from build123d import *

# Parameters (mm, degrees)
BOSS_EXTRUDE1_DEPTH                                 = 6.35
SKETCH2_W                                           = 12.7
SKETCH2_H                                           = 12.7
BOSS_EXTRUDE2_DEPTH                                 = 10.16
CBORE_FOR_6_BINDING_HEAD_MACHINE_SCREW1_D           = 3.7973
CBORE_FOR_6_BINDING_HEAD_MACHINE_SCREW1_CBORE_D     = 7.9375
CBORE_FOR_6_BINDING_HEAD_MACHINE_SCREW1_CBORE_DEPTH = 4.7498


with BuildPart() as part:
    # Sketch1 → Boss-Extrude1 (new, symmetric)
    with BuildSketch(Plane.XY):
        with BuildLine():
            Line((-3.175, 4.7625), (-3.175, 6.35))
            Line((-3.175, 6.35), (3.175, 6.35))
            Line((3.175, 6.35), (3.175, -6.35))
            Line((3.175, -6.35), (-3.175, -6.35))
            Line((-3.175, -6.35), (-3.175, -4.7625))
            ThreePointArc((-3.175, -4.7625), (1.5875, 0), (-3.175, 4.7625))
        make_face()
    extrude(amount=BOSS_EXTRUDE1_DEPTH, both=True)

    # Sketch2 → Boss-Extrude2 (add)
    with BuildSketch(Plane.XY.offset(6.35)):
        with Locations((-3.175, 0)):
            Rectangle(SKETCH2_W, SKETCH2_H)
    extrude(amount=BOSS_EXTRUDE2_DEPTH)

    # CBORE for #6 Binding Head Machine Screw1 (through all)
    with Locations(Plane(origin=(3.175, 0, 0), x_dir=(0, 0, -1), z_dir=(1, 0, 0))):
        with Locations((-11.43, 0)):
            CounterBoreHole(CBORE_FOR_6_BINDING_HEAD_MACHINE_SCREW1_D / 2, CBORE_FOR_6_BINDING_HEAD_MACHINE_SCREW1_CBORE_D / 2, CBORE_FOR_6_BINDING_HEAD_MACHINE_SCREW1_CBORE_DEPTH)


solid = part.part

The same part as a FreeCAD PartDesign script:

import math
import FreeCAD as App
import Part
import Sketcher

V = App.Vector
Q = App.Units.Quantity


def add_polygon(sketch, points):
    """Adds a closed chain of lines whose ends are joined by coincident constraints."""
    first, n = sketch.GeometryCount, len(points)
    for a, b in zip(points, points[1:] + points[:1]):
        sketch.addGeometry(Part.LineSegment(App.Vector(*a, 0), App.Vector(*b, 0)), False)
    for i in range(n):
        sketch.addConstraint(Sketcher.Constraint("Coincident", first + i, 2, first + (i + 1) % n, 1))

doc = App.newDocument("Part")
params = doc.addObject("Spreadsheet::Sheet", "Params")
for row, (alias, value) in enumerate([
    ("sketch1_height", "0.5 in"),
    ("sketch1_radius", "0.1875 in"),
    ("sketch1_width", "0.25 in"),
    ("pad1_length", "0.5 in"),
    ("sketch2_width", "0.5 in"),
    ("pad2_length", "0.4 in"),
    ("hole_diameter", "0.1495 in"),
    ("hole_cbore_diameter", "0.3125 in"),
    ("hole_cbore_depth", "0.187 in"),
], start=1):
    params.set(f"A{row}", alias)
    params.set(f"B{row}", "=" + value)
    params.setAlias(f"B{row}", alias)

body = doc.addObject("PartDesign::Body", "Body")

# Sketch on XY plane
sketch1 = doc.addObject("Sketcher::SketchObject", "Sketch")
body.addObject(sketch1)
sketch1.AttachmentSupport = (doc.XY_Plane, [""])
sketch1.MapMode = "FlatFace"
sketch1.addGeometry(Part.LineSegment(V(-3.175, 6.35, 0), V(-3.175, 4.7625, 0)), False)
sketch1.addGeometry(Part.ArcOfCircle(Part.Circle(V(-3.175, 0, 0), V(0, 0, 1), 4.7625), math.radians(-90), math.radians(90)), False)
sketch1.addGeometry(Part.LineSegment(V(-3.175, -4.7625, 0), V(-3.175, -6.35, 0)), False)
sketch1.addGeometry(Part.LineSegment(V(-3.175, -6.35, 0), V(3.175, -6.35, 0)), False)
sketch1.addGeometry(Part.LineSegment(V(3.175, -6.35, 0), V(3.175, 6.35, 0)), False)
sketch1.addGeometry(Part.LineSegment(V(3.175, 6.35, 0), V(-3.175, 6.35, 0)), False)
sketch1.addConstraint(Sketcher.Constraint("Coincident", 0, 2, 1, 2))
sketch1.addConstraint(Sketcher.Constraint("Coincident", 1, 1, 2, 1))
sketch1.addConstraint(Sketcher.Constraint("Coincident", 2, 2, 3, 1))
sketch1.addConstraint(Sketcher.Constraint("Coincident", 3, 2, 4, 1))
sketch1.addConstraint(Sketcher.Constraint("Coincident", 4, 2, 5, 1))
sketch1.addConstraint(Sketcher.Constraint("Coincident", 5, 2, 0, 1))
sketch1.addConstraint(Sketcher.Constraint("Vertical", 0))
sketch1.addConstraint(Sketcher.Constraint("Vertical", 2))
sketch1.addConstraint(Sketcher.Constraint("Horizontal", 3))
sketch1.addConstraint(Sketcher.Constraint("Vertical", 4))
sketch1.addConstraint(Sketcher.Constraint("Horizontal", 5))
sketch1.addConstraint(Sketcher.Constraint("Symmetric", 2, 2, 4, 2, -1, 1))
sketch1.addConstraint(Sketcher.Constraint("Symmetric", 0, 2, 1, 1, -1))
sketch1.addConstraint(Sketcher.Constraint("Vertical", 1, 3, 0, 2))
sketch1.addConstraint(Sketcher.Constraint("DistanceY", 4, 1, 4, 2, Q("0.5 in")))
sketch1.addConstraint(Sketcher.Constraint("Radius", 1, Q("0.1875 in")))
sketch1.addConstraint(Sketcher.Constraint("DistanceX", 3, 1, 3, 2, Q("0.25 in")))
sketch1.setExpression("Constraints[14]", "Params.sketch1_height")
sketch1.setExpression("Constraints[15]", "Params.sketch1_radius")
sketch1.setExpression("Constraints[16]", "Params.sketch1_width")
pad1 = doc.addObject("PartDesign::Pad", "Pad")
body.addObject(pad1)
pad1.Profile = sketch1
pad1.setExpression("Length", "Params.pad1_length")
pad1.Midplane = True

# Sketch on XY plane
sketch2 = doc.addObject("Sketcher::SketchObject", "Sketch001")
body.addObject(sketch2)
sketch2.AttachmentSupport = (doc.XY_Plane, [""])
sketch2.MapMode = "FlatFace"
sketch2.AttachmentOffset = App.Placement(V(0, 0, 0.25 * 25.4), App.Rotation())
add_polygon(sketch2, [(-9.525, 6.35), (-9.525, -6.35), (3.175, -6.35), (3.175, 6.35)])  # lines 0-3
sketch2.addConstraint(Sketcher.Constraint("Vertical", 0))
sketch2.addConstraint(Sketcher.Constraint("Horizontal", 1))
sketch2.addConstraint(Sketcher.Constraint("Vertical", 2))
sketch2.addConstraint(Sketcher.Constraint("Horizontal", 3))
sketch2.addConstraint(Sketcher.Constraint("Equal", 3, 0))
sketch2.addConstraint(Sketcher.Constraint("DistanceX", 1, 1, 1, 2, Q("0.5 in")))
sketch2.addConstraint(Sketcher.Constraint("DistanceY", 0, 2, -1, 1, Q("0.25 in")))
sketch2.addConstraint(Sketcher.Constraint("DistanceX", 0, 2, -1, 1, Q("0.375 in")))
sketch2.setExpression("Constraints[9]", "Params.sketch2_width")
pad2 = doc.addObject("PartDesign::Pad", "Pad001")
body.addObject(pad2)
pad2.Profile = sketch2
pad2.setExpression("Length", "Params.pad2_length")

# Sketch on YZ plane
sketch3 = doc.addObject("Sketcher::SketchObject", "Sketch002")
body.addObject(sketch3)
sketch3.AttachmentSupport = (doc.YZ_Plane, [""])
sketch3.MapMode = "FlatFace"
sketch3.AttachmentOffset = App.Placement(V(0, 0, 0.125 * 25.4), App.Rotation())
sketch3.addGeometry(Part.Circle(V(0, 11.43, 0), V(0, 0, 1), 1.89865), False)
sketch3.addConstraint(Sketcher.Constraint("PointOnObject", 0, 3, -2))
sketch3.addConstraint(Sketcher.Constraint("Diameter", 0, Q("0.1495 in")))
sketch3.addConstraint(Sketcher.Constraint("DistanceY", -1, 1, 0, 3, Q("0.45 in")))
doc.recompute()
hole = doc.addObject("PartDesign::Hole", "Hole")
body.addObject(hole)
hole.Profile = sketch3
hole.ThreadType = "None"
hole.setExpression("Diameter", "Params.hole_diameter")
hole.DepthType = "ThroughAll"
hole.HoleCutType = "Counterbore"
hole.setExpression("HoleCutDiameter", "Params.hole_cbore_diameter")
hole.setExpression("HoleCutDepth", "Params.hole_cbore_depth")

doc.recompute()
